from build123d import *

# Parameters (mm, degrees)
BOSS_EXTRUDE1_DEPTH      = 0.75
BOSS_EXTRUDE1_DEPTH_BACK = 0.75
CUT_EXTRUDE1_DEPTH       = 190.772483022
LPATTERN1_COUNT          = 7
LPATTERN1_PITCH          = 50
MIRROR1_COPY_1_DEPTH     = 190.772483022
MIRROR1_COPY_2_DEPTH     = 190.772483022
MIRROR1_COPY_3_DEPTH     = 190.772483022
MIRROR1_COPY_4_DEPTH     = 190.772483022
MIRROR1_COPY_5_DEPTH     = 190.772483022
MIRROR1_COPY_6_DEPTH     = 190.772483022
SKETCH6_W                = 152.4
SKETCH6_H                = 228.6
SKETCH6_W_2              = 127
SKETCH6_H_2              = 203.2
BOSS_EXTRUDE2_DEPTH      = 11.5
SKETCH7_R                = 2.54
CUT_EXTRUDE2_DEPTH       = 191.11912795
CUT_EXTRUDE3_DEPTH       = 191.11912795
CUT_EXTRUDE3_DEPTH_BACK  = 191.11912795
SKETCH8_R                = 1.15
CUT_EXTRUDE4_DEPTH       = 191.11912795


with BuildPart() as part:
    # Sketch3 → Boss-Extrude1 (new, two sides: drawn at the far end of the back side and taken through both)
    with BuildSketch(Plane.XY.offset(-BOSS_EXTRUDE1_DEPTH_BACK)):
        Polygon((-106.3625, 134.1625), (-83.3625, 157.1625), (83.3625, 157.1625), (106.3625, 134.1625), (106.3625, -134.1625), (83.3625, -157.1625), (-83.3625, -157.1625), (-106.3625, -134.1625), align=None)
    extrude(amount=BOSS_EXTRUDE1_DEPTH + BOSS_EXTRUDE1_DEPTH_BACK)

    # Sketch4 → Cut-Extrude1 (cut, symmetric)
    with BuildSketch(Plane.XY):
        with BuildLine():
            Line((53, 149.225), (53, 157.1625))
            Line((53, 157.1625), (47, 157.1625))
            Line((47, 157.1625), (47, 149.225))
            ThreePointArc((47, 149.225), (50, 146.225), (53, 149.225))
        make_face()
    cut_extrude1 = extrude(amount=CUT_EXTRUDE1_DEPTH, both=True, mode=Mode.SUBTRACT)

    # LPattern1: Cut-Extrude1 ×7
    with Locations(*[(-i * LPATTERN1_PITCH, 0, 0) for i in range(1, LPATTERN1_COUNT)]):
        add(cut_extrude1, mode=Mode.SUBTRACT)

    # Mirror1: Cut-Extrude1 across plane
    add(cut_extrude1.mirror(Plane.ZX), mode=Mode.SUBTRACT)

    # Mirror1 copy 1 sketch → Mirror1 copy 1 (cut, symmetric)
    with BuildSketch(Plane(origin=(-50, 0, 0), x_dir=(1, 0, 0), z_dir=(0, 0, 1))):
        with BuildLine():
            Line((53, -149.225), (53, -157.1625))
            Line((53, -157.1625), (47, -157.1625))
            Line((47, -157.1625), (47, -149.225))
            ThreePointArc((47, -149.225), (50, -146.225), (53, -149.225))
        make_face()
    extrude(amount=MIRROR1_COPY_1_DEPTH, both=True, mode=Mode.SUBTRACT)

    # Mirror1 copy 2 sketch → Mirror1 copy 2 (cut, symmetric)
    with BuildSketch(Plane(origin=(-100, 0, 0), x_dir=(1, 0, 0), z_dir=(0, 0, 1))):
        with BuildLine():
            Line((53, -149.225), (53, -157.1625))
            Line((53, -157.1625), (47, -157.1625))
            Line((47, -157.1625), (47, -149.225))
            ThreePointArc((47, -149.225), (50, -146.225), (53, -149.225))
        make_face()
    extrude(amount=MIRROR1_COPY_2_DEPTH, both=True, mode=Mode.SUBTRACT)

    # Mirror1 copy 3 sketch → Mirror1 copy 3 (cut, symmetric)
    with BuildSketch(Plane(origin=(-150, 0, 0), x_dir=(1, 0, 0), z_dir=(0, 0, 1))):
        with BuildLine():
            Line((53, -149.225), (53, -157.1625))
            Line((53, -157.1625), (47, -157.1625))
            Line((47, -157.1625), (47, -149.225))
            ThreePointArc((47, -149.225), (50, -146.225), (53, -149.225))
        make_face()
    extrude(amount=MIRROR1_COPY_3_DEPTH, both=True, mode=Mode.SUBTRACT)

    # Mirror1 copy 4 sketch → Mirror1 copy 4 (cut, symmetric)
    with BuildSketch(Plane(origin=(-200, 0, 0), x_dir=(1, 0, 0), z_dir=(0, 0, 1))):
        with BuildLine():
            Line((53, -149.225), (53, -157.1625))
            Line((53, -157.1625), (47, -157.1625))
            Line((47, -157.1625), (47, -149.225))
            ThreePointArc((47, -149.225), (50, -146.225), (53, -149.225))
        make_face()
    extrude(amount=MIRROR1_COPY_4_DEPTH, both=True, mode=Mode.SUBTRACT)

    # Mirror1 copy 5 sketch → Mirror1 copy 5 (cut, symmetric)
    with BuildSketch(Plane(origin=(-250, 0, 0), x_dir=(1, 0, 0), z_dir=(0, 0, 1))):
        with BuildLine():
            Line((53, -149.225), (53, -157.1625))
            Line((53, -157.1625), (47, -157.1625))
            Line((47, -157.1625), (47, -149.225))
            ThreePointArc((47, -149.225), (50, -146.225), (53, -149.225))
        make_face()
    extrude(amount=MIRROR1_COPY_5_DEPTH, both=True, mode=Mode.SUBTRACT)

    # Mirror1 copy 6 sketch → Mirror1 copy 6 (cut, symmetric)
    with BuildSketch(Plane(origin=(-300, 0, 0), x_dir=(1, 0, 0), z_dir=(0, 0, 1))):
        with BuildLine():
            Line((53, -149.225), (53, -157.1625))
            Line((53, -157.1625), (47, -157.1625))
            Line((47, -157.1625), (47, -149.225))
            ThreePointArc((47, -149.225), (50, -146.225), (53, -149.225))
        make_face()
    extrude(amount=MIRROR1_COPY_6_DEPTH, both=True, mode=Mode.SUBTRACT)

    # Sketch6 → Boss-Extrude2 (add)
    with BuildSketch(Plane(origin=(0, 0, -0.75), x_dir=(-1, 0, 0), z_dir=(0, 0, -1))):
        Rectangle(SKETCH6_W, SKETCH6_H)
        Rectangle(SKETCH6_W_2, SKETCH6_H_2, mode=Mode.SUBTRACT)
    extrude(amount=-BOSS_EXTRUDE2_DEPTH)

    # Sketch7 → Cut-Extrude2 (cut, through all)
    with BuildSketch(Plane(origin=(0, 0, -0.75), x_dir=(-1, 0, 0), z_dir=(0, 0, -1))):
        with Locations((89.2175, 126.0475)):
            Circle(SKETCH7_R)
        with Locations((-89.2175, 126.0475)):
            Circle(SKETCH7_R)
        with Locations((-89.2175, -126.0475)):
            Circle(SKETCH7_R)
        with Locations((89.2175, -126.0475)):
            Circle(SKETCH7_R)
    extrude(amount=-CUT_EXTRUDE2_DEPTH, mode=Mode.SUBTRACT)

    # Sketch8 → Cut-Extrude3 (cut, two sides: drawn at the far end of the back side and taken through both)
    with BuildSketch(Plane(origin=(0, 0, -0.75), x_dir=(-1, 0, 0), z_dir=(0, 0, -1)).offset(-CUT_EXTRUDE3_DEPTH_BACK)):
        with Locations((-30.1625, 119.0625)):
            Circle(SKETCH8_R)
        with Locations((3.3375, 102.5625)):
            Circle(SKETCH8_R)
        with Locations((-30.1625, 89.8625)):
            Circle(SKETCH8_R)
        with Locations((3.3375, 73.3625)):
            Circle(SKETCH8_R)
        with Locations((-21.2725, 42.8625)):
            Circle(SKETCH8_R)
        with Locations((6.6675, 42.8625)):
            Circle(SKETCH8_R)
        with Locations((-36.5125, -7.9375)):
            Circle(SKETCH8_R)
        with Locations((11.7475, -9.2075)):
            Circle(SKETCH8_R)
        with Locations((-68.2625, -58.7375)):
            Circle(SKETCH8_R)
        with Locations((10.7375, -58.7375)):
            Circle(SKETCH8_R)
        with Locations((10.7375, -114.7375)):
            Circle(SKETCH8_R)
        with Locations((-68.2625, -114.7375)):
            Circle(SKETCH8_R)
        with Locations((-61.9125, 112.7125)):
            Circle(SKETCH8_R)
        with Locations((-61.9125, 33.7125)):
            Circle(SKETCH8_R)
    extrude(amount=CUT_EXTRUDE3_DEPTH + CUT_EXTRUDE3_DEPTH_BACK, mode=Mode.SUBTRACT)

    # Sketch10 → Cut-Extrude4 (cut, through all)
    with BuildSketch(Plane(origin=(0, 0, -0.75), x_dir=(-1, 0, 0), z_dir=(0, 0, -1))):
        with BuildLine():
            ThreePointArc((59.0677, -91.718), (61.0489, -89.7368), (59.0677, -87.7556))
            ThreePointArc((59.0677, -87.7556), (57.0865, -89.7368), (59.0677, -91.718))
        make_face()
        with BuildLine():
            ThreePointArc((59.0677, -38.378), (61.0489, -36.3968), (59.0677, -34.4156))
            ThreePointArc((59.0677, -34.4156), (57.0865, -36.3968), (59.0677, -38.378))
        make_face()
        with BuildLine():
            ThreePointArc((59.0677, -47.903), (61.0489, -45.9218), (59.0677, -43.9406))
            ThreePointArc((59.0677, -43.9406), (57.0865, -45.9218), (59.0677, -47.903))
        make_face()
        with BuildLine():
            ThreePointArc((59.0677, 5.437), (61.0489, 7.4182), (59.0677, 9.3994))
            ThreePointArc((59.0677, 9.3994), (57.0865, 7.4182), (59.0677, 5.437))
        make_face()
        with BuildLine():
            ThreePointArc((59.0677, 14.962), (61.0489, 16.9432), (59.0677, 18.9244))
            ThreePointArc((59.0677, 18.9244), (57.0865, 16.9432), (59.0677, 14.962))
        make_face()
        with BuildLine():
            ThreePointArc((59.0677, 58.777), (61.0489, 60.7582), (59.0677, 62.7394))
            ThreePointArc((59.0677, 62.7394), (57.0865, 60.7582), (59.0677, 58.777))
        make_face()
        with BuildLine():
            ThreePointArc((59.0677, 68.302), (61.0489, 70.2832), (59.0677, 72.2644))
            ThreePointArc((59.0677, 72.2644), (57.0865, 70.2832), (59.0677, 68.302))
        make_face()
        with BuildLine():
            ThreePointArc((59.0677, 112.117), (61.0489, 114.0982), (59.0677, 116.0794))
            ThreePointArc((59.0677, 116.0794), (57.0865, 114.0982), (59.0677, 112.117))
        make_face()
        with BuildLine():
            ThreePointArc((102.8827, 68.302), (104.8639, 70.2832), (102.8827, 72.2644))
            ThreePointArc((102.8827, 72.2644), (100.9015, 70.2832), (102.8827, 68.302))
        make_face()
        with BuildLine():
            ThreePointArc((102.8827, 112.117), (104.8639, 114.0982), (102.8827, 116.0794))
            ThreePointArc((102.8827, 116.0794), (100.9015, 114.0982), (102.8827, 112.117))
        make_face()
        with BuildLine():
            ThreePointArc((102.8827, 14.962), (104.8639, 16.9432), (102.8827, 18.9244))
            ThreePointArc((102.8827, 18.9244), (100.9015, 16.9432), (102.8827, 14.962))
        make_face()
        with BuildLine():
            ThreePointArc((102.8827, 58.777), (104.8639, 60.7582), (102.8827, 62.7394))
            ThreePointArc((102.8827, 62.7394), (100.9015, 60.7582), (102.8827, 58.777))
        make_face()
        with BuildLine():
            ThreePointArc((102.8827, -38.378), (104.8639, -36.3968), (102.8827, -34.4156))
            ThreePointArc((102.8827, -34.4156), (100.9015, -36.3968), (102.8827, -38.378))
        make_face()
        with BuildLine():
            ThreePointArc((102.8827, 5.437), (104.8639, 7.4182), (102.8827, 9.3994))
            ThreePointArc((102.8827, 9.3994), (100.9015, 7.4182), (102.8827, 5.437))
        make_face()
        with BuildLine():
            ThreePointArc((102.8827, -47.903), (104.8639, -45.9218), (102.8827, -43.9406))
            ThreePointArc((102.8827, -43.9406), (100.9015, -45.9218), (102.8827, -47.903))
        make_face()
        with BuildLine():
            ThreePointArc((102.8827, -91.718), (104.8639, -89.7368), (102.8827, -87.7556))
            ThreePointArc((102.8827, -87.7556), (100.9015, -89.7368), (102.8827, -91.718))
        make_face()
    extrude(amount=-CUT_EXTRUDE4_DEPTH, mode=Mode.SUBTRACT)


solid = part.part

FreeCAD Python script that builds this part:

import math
import FreeCAD as App
import Part
import Sketcher
Q = App.Units.Quantity


def add_polygon(sketch, points):
    """Adds a closed chain of lines whose ends are joined by coincident constraints."""
    first, n = sketch.GeometryCount, len(points)
    for a, b in zip(points, points[1:] + points[:1]):
        sketch.addGeometry(Part.LineSegment(App.Vector(*a, 0), App.Vector(*b, 0)), False)
    for i in range(n):
        sketch.addConstraint(Sketcher.Constraint("Coincident", first + i, 2, first + (i + 1) % n, 1))

doc = App.newDocument("Part")
body = doc.addObject("PartDesign::Body", "Body")

sketch1 = body.newObject("Sketcher::SketchObject", "Sketch")
sketch1.AttachmentSupport = (doc.getObject("XY_Plane"), [""])
sketch1.MapMode = "FlatFace"
add_polygon(sketch1, [(-83.3625, 157.1625), (-106.3625, 134.1625), (-106.3625, -134.1625), (-83.3625, -157.1625), (83.3625, -157.1625), (106.3625, -134.1625), (106.3625, 134.1625), (83.3625, 157.1625)])
sketch1.addConstraint(Sketcher.Constraint("Vertical", 1))
sketch1.addConstraint(Sketcher.Constraint("Horizontal", 3))
sketch1.addConstraint(Sketcher.Constraint("Vertical", 5))
sketch1.addConstraint(Sketcher.Constraint("Horizontal", 7))
sketch1.addConstraint(Sketcher.Constraint("Symmetric", 0, 2, 4, 2, -1, 1))
sketch1.addConstraint(Sketcher.Constraint("Symmetric", 2, 2, 6, 2, -1, 1))
sketch1.addConstraint(Sketcher.Constraint("Perpendicular", 0, 2))
sketch1.addConstraint(Sketcher.Constraint("Perpendicular", 2, 4))
sketch1.addConstraint(Sketcher.Constraint("Perpendicular", 4, 6))
sketch1.addConstraint(Sketcher.Constraint("Horizontal", 1, 2, 4, 2))
sketch1.addConstraint(Sketcher.Constraint("Vertical", 3, 2, 6, 2))
sketch1.addConstraint(Sketcher.Constraint("DistanceX", 0, 2, -1, 1, Q("4.1875 in")))
sketch1.addConstraint(Sketcher.Constraint("DistanceY", 2, 2, -1, 1, Q("6.1875 in")))
sketch1.addConstraint(Sketcher.Constraint("DistanceX", 3, 1, 3, 2, 166.725))
pad1 = body.newObject("PartDesign::Pad", "Pad")
pad1.Profile = sketch1
pad1.Type = "TwoLengths"
pad1.Length = 0.75
pad1.Length2 = 0.75

sketch2 = body.newObject("Sketcher::SketchObject", "Sketch001")
sketch2.AttachmentSupport = (doc.getObject("XY_Plane"), [""])
sketch2.MapMode = "FlatFace"
sketch2.addGeometry(Part.LineSegment(App.Vector(53, 149.225, 0), App.Vector(53, 157.1625, 0)), False)
sketch2.addGeometry(Part.LineSegment(App.Vector(53, 157.1625, 0), App.Vector(47, 157.1625, 0)), False)
sketch2.addGeometry(Part.LineSegment(App.Vector(47, 157.1625, 0), App.Vector(47, 149.225, 0)), False)
sketch2.addGeometry(Part.ArcOfCircle(Part.Circle(App.Vector(50, 149.225, 0), App.Vector(0, 0, 1), 3), math.radians(180), math.radians(360)), False)
sketch2.addConstraint(Sketcher.Constraint("Coincident", 0, 2, 1, 1))
sketch2.addConstraint(Sketcher.Constraint("Coincident", 1, 2, 2, 1))
sketch2.addConstraint(Sketcher.Constraint("Tangent", 2, 2, 3, 1))
sketch2.addConstraint(Sketcher.Constraint("Tangent", 3, 2, 0, 1))
sketch2.addConstraint(Sketcher.Constraint("Vertical", 0))
sketch2.addConstraint(Sketcher.Constraint("Horizontal", 1))
sketch2.addConstraint(Sketcher.Constraint("Vertical", 2))
sketch2.addConstraint(Sketcher.Constraint("DistanceY", 0, 1, 0, 2, Q("0.3125 in")))
sketch2.addConstraint(Sketcher.Constraint("Radius", 3, 3.0))
sketch2.addConstraint(Sketcher.Constraint("DistanceY", -1, 1, 3, 3, Q("5.875 in")))
sketch2.addConstraint(Sketcher.Constraint("DistanceX", -1, 1, 3, 3, 50.0))
pocket1 = body.newObject("PartDesign::Pocket", "Pocket")
pocket1.Profile = sketch2
pocket1.Length = 381.544966
pocket1.Midplane = True
doc.recompute()

linearpattern = body.newObject("PartDesign::LinearPattern", "LinearPattern")
linearpattern.Originals = [pocket1]
linearpattern.Direction = (doc.getObject("X_Axis"), [""])
linearpattern.Mode = "offset"
linearpattern.Offset = 50
linearpattern.Occurrences = 7
linearpattern.Reversed = True
body.Tip = linearpattern
doc.recompute()

mirrored = body.newObject("PartDesign::Mirrored", "Mirrored")
mirrored.Originals = [pocket1]
mirrored.MirrorPlane = (doc.getObject("XZ_Plane"), [""])
body.Tip = mirrored

sketch3 = body.newObject("Sketcher::SketchObject", "Sketch002")
sketch3.AttachmentSupport = (doc.getObject("XY_Plane"), [""])
sketch3.MapMode = "FlatFace"
sketch3.addGeometry(Part.LineSegment(App.Vector(3, -157.1625, 0), App.Vector(3, -149.225, 0)), False)
sketch3.addGeometry(Part.ArcOfCircle(Part.Circle(App.Vector(0, -149.225, 0), App.Vector(0, 0, 1), 3), math.radians(0), math.radians(180)), False)
sketch3.addGeometry(Part.LineSegment(App.Vector(-3, -149.225, 0), App.Vector(-3, -157.1625, 0)), False)
sketch3.addGeometry(Part.LineSegment(App.Vector(-3, -157.1625, 0), App.Vector(3, -157.1625, 0)), False)
sketch3.addConstraint(Sketcher.Constraint("Tangent", 0, 2, 1, 1))
sketch3.addConstraint(Sketcher.Constraint("Tangent", 1, 2, 2, 1))
sketch3.addConstraint(Sketcher.Constraint("Coincident", 2, 2, 3, 1))
sketch3.addConstraint(Sketcher.Constraint("Coincident", 3, 2, 0, 1))
sketch3.addConstraint(Sketcher.Constraint("Vertical", 0))
sketch3.addConstraint(Sketcher.Constraint("Vertical", 2))
sketch3.addConstraint(Sketcher.Constraint("Horizontal", 3))
sketch3.addConstraint(Sketcher.Constraint("PointOnObject", 1, 3, -2))
sketch3.addConstraint(Sketcher.Constraint("DistanceY", 0, 1, 0, 2, Q("0.3125 in")))
sketch3.addConstraint(Sketcher.Constraint("Radius", 1, 3.0))
sketch3.addConstraint(Sketcher.Constraint("DistanceY", 1, 3, -1, 1, Q("5.875 in")))
pocket2 = body.newObject("PartDesign::Pocket", "Pocket001")
pocket2.Profile = sketch3
pocket2.Length = 381.544966
pocket2.Midplane = True

sketch4 = body.newObject("Sketcher::SketchObject", "Sketch003")
sketch4.AttachmentSupport = (doc.getObject("XY_Plane"), [""])
sketch4.MapMode = "FlatFace"
sketch4.addGeometry(Part.LineSegment(App.Vector(-47, -157.1625, 0), App.Vector(-47, -149.225, 0)), False)
sketch4.addGeometry(Part.ArcOfCircle(Part.Circle(App.Vector(-50, -149.225, 0), App.Vector(0, 0, 1), 3), math.radians(0), math.radians(180)), False)
sketch4.addGeometry(Part.LineSegment(App.Vector(-53, -149.225, 0), App.Vector(-53, -157.1625, 0)), False)
sketch4.addGeometry(Part.LineSegment(App.Vector(-53, -157.1625, 0), App.Vector(-47, -157.1625, 0)), False)
sketch4.addConstraint(Sketcher.Constraint("Tangent", 0, 2, 1, 1))
sketch4.addConstraint(Sketcher.Constraint("Tangent", 1, 2, 2, 1))
sketch4.addConstraint(Sketcher.Constraint("Coincident", 2, 2, 3, 1))
sketch4.addConstraint(Sketcher.Constraint("Coincident", 3, 2, 0, 1))
sketch4.addConstraint(Sketcher.Constraint("Vertical", 0))
sketch4.addConstraint(Sketcher.Constraint("Vertical", 2))
sketch4.addConstraint(Sketcher.Constraint("Horizontal", 3))
sketch4.addConstraint(Sketcher.Constraint("DistanceY", 0, 1, 0, 2, Q("0.3125 in")))
sketch4.addConstraint(Sketcher.Constraint("Radius", 1, 3.0))
sketch4.addConstraint(Sketcher.Constraint("DistanceY", 1, 3, -1, 1, Q("5.875 in")))
sketch4.addConstraint(Sketcher.Constraint("DistanceX", 1, 3, -1, 1, 50.0))
pocket3 = body.newObject("PartDesign::Pocket", "Pocket002")
pocket3.Profile = sketch4
pocket3.Length = 381.544966
pocket3.Midplane = True

sketch5 = body.newObject("Sketcher::SketchObject", "Sketch004")
sketch5.AttachmentSupport = (doc.getObject("XY_Plane"), [""])
sketch5.MapMode = "FlatFace"
sketch5.addGeometry(Part.LineSegment(App.Vector(-97, -157.1625, 0), App.Vector(-97, -149.225, 0)), False)
sketch5.addGeometry(Part.ArcOfCircle(Part.Circle(App.Vector(-100, -149.225, 0), App.Vector(0, 0, 1), 3), math.radians(0), math.radians(180)), False)
sketch5.addGeometry(Part.LineSegment(App.Vector(-103, -149.225, 0), App.Vector(-103, -157.1625, 0)), False)
sketch5.addGeometry(Part.LineSegment(App.Vector(-103, -157.1625, 0), App.Vector(-97, -157.1625, 0)), False)
sketch5.addConstraint(Sketcher.Constraint("Tangent", 0, 2, 1, 1))
sketch5.addConstraint(Sketcher.Constraint("Tangent", 1, 2, 2, 1))
sketch5.addConstraint(Sketcher.Constraint("Coincident", 2, 2, 3, 1))
sketch5.addConstraint(Sketcher.Constraint("Coincident", 3, 2, 0, 1))
sketch5.addConstraint(Sketcher.Constraint("Vertical", 0))
sketch5.addConstraint(Sketcher.Constraint("Vertical", 2))
sketch5.addConstraint(Sketcher.Constraint("Horizontal", 3))
sketch5.addConstraint(Sketcher.Constraint("DistanceY", 0, 1, 0, 2, Q("0.3125 in")))
sketch5.addConstraint(Sketcher.Constraint("Radius", 1, 3.0))
sketch5.addConstraint(Sketcher.Constraint("DistanceY", 1, 3, -1, 1, Q("5.875 in")))
sketch5.addConstraint(Sketcher.Constraint("DistanceX", 1, 3, -1, 1, 100.0))
pocket4 = body.newObject("PartDesign::Pocket", "Pocket003")
pocket4.Profile = sketch5
pocket4.Length = 381.544966
pocket4.Midplane = True

sketch6 = body.newObject("Sketcher::SketchObject", "Sketch005")
sketch6.AttachmentSupport = (doc.getObject("XY_Plane"), [""])
sketch6.MapMode = "FlatFace"
sketch6.addGeometry(Part.LineSegment(App.Vector(-147, -157.1625, 0), App.Vector(-147, -149.225, 0)), False)
sketch6.addGeometry(Part.ArcOfCircle(Part.Circle(App.Vector(-150, -149.225, 0), App.Vector(0, 0, 1), 3), math.radians(0), math.radians(180)), False)
sketch6.addGeometry(Part.LineSegment(App.Vector(-153, -149.225, 0), App.Vector(-153, -157.1625, 0)), False)
sketch6.addGeometry(Part.LineSegment(App.Vector(-153, -157.1625, 0), App.Vector(-147, -157.1625, 0)), False)
sketch6.addConstraint(Sketcher.Constraint("Tangent", 0, 2, 1, 1))
sketch6.addConstraint(Sketcher.Constraint("Tangent", 1, 2, 2, 1))
sketch6.addConstraint(Sketcher.Constraint("Coincident", 2, 2, 3, 1))
sketch6.addConstraint(Sketcher.Constraint("Coincident", 3, 2, 0, 1))
sketch6.addConstraint(Sketcher.Constraint("Vertical", 0))
sketch6.addConstraint(Sketcher.Constraint("Vertical", 2))
sketch6.addConstraint(Sketcher.Constraint("Horizontal", 3))
sketch6.addConstraint(Sketcher.Constraint("DistanceY", 0, 1, 0, 2, Q("0.3125 in")))
sketch6.addConstraint(Sketcher.Constraint("Radius", 1, 3.0))
sketch6.addConstraint(Sketcher.Constraint("DistanceY", 1, 3, -1, 1, Q("5.875 in")))
sketch6.addConstraint(Sketcher.Constraint("DistanceX", 1, 3, -1, 1, 150.0))
pocket5 = body.newObject("PartDesign::Pocket", "Pocket004")
pocket5.Profile = sketch6
pocket5.Length = 381.544966
pocket5.Midplane = True

sketch7 = body.newObject("Sketcher::SketchObject", "Sketch006")
sketch7.AttachmentSupport = (doc.getObject("XY_Plane"), [""])
sketch7.MapMode = "FlatFace"
sketch7.addGeometry(Part.LineSegment(App.Vector(-197, -157.1625, 0), App.Vector(-197, -149.225, 0)), False)
sketch7.addGeometry(Part.ArcOfCircle(Part.Circle(App.Vector(-200, -149.225, 0), App.Vector(0, 0, 1), 3), math.radians(0), math.radians(180)), False)
sketch7.addGeometry(Part.LineSegment(App.Vector(-203, -149.225, 0), App.Vector(-203, -157.1625, 0)), False)
sketch7.addGeometry(Part.LineSegment(App.Vector(-203, -157.1625, 0), App.Vector(-197, -157.1625, 0)), False)
sketch7.addConstraint(Sketcher.Constraint("Tangent", 0, 2, 1, 1))
sketch7.addConstraint(Sketcher.Constraint("Tangent", 1, 2, 2, 1))
sketch7.addConstraint(Sketcher.Constraint("Coincident", 2, 2, 3, 1))
sketch7.addConstraint(Sketcher.Constraint("Coincident", 3, 2, 0, 1))
sketch7.addConstraint(Sketcher.Constraint("Vertical", 0))
sketch7.addConstraint(Sketcher.Constraint("Vertical", 2))
sketch7.addConstraint(Sketcher.Constraint("Horizontal", 3))
sketch7.addConstraint(Sketcher.Constraint("DistanceY", 0, 1, 0, 2, Q("0.3125 in")))
sketch7.addConstraint(Sketcher.Constraint("Radius", 1, 3.0))
sketch7.addConstraint(Sketcher.Constraint("DistanceY", 1, 3, -1, 1, Q("5.875 in")))
sketch7.addConstraint(Sketcher.Constraint("DistanceX", 1, 3, -1, 1, 200.0))
pocket6 = body.newObject("PartDesign::Pocket", "Pocket005")
pocket6.Profile = sketch7
pocket6.Length = 381.544966
pocket6.Midplane = True

sketch8 = body.newObject("Sketcher::SketchObject", "Sketch007")
sketch8.AttachmentSupport = (doc.getObject("XY_Plane"), [""])
sketch8.MapMode = "FlatFace"
sketch8.addGeometry(Part.LineSegment(App.Vector(-247, -157.1625, 0), App.Vector(-247, -149.225, 0)), False)
sketch8.addGeometry(Part.ArcOfCircle(Part.Circle(App.Vector(-250, -149.225, 0), App.Vector(0, 0, 1), 3), math.radians(0), math.radians(180)), False)
sketch8.addGeometry(Part.LineSegment(App.Vector(-253, -149.225, 0), App.Vector(-253, -157.1625, 0)), False)
sketch8.addGeometry(Part.LineSegment(App.Vector(-253, -157.1625, 0), App.Vector(-247, -157.1625, 0)), False)
sketch8.addConstraint(Sketcher.Constraint("Tangent", 0, 2, 1, 1))
sketch8.addConstraint(Sketcher.Constraint("Tangent", 1, 2, 2, 1))
sketch8.addConstraint(Sketcher.Constraint("Coincident", 2, 2, 3, 1))
sketch8.addConstraint(Sketcher.Constraint("Coincident", 3, 2, 0, 1))
sketch8.addConstraint(Sketcher.Constraint("Vertical", 0))
sketch8.addConstraint(Sketcher.Constraint("Vertical", 2))
sketch8.addConstraint(Sketcher.Constraint("Horizontal", 3))
sketch8.addConstraint(Sketcher.Constraint("DistanceY", 0, 1, 0, 2, Q("0.3125 in")))
sketch8.addConstraint(Sketcher.Constraint("Radius", 1, 3.0))
sketch8.addConstraint(Sketcher.Constraint("DistanceY", 1, 3, -1, 1, Q("5.875 in")))
sketch8.addConstraint(Sketcher.Constraint("DistanceX", 1, 3, -1, 1, 250.0))
pocket7 = body.newObject("PartDesign::Pocket", "Pocket006")
pocket7.Profile = sketch8
pocket7.Length = 381.544966
pocket7.Midplane = True

sketch9 = body.newObject("Sketcher::SketchObject", "Sketch008")
sketch9.AttachmentSupport = (doc.getObject("XY_Plane"), [""])
sketch9.MapMode = "FlatFace"
sketch9.AttachmentOffset = App.Placement(App.Vector(0, 0, -0.75), App.Rotation())
add_polygon(sketch9, [(76.2, 114.3), (76.2, -114.3), (-76.2, -114.3), (-76.2, 114.3)])
add_polygon(sketch9, [(-63.5, -101.6), (63.5, -101.6), (63.5, 101.6), (-63.5, 101.6)])
sketch9.addConstraint(Sketcher.Constraint("Vertical", 0))
sketch9.addConstraint(Sketcher.Constraint("Horizontal", 1))
sketch9.addConstraint(Sketcher.Constraint("Vertical", 2))
sketch9.addConstraint(Sketcher.Constraint("Horizontal", 3))
sketch9.addConstraint(Sketcher.Constraint("Horizontal", 4))
sketch9.addConstraint(Sketcher.Constraint("Vertical", 5))
sketch9.addConstraint(Sketcher.Constraint("Horizontal", 6))
sketch9.addConstraint(Sketcher.Constraint("Vertical", 7))
sketch9.addConstraint(Sketcher.Constraint("Symmetric", 0, 2, 2, 2, -1, 1))
sketch9.addConstraint(Sketcher.Constraint("Symmetric", 4, 2, 6, 2, -1, 1))
sketch9.addConstraint(Sketcher.Constraint("DistanceX", 1, 2, 1, 1, Q("6 in")))
sketch9.addConstraint(Sketcher.Constraint("DistanceX", 4, 1, 4, 2, Q("5 in")))
sketch9.addConstraint(Sketcher.Constraint("DistanceY", 0, 2, 0, 1, Q("9 in")))
sketch9.addConstraint(Sketcher.Constraint("DistanceY", 5, 1, 5, 2, Q("8 in")))
pad2 = body.newObject("PartDesign::Pad", "Pad001")
pad2.Profile = sketch9
pad2.Length = 11.5

sketch10 = body.newObject("Sketcher::SketchObject", "Sketch009")
sketch10.AttachmentSupport = (doc.getObject("XY_Plane"), [""])
sketch10.MapMode = "FlatFace"
sketch10.AttachmentOffset = App.Placement(App.Vector(0, 0, -0.75), App.Rotation())
sketch10.addGeometry(Part.Circle(App.Vector(-89.2175, 126.0475, 0), App.Vector(0, 0, 1), 2.54), False)
sketch10.addGeometry(Part.Circle(App.Vector(89.2175, 126.0475, 0), App.Vector(0, 0, 1), 2.54), False)
sketch10.addGeometry(Part.Circle(App.Vector(89.2175, -126.0475, 0), App.Vector(0, 0, 1), 2.54), False)
sketch10.addGeometry(Part.Circle(App.Vector(-89.2175, -126.0475, 0), App.Vector(0, 0, 1), 2.54), False)
sketch10.addConstraint(Sketcher.Constraint("Equal", 0, 1))
sketch10.addConstraint(Sketcher.Constraint("Equal", 1, 2))
sketch10.addConstraint(Sketcher.Constraint("Equal", 2, 3))
sketch10.addConstraint(Sketcher.Constraint("Symmetric", 0, 3, 2, 3, -1, 1))
sketch10.addConstraint(Sketcher.Constraint("Symmetric", 1, 3, 3, 3, -1, 1))
sketch10.addConstraint(Sketcher.Constraint("Symmetric", 0, 3, 1, 3, -2))
sketch10.addConstraint(Sketcher.Constraint("Diameter", 0, Q("0.2 in")))
sketch10.addConstraint(Sketcher.Constraint("DistanceX", 0, 3, 1, 3, Q("7.025 in")))
sketch10.addConstraint(Sketcher.Constraint("DistanceY", 2, 3, 1, 3, Q("9.925 in")))
pocket8 = body.newObject("PartDesign::Pocket", "Pocket007")
pocket8.Profile = sketch10
pocket8.Type = "ThroughAll"
pocket8.Reversed = True

sketch11 = body.newObject("Sketcher::SketchObject", "Sketch010")
sketch11.AttachmentSupport = (doc.getObject("XY_Plane"), [""])
sketch11.MapMode = "FlatFace"
sketch11.AttachmentOffset = App.Placement(App.Vector(0, 0, -0.75), App.Rotation())
sketch11.addGeometry(Part.Circle(App.Vector(30.1625, 119.0625, 0), App.Vector(0, 0, 1), 1.15), False)
sketch11.addGeometry(Part.Circle(App.Vector(-3.3375, 102.5625, 0), App.Vector(0, 0, 1), 1.15), False)
sketch11.addGeometry(Part.Circle(App.Vector(30.1625, 89.8625, 0), App.Vector(0, 0, 1), 1.15), False)
sketch11.addGeometry(Part.Circle(App.Vector(-3.3375, 73.3625, 0), App.Vector(0, 0, 1), 1.15), False)
sketch11.addGeometry(Part.Circle(App.Vector(21.2725, 42.8625, 0), App.Vector(0, 0, 1), 1.15), False)
sketch11.addGeometry(Part.Circle(App.Vector(-6.6675, 42.8625, 0), App.Vector(0, 0, 1), 1.15), False)
sketch11.addGeometry(Part.Circle(App.Vector(36.5125, -7.9375, 0), App.Vector(0, 0, 1), 1.15), False)
sketch11.addGeometry(Part.Circle(App.Vector(-11.7475, -9.2075, 0), App.Vector(0, 0, 1), 1.15), False)
sketch11.addGeometry(Part.Circle(App.Vector(68.2625, -58.7375, 0), App.Vector(0, 0, 1), 1.15), False)
sketch11.addGeometry(Part.Circle(App.Vector(-10.7375, -58.7375, 0), App.Vector(0, 0, 1), 1.15), False)
sketch11.addGeometry(Part.Circle(App.Vector(-10.7375, -114.7375, 0), App.Vector(0, 0, 1), 1.15), False)
sketch11.addGeometry(Part.Circle(App.Vector(68.2625, -114.7375, 0), App.Vector(0, 0, 1), 1.15), False)
sketch11.addGeometry(Part.Circle(App.Vector(61.9125, 112.7125, 0), App.Vector(0, 0, 1), 1.15), False)
sketch11.addGeometry(Part.Circle(App.Vector(61.9125, 33.7125, 0), App.Vector(0, 0, 1), 1.15), False)
sketch11.addConstraint(Sketcher.Constraint("Equal", 0, 1))
sketch11.addConstraint(Sketcher.Constraint("Equal", 1, 2))
sketch11.addConstraint(Sketcher.Constraint("Equal", 2, 3))
sketch11.addConstraint(Sketcher.Constraint("Equal", 3, 4))
sketch11.addConstraint(Sketcher.Constraint("Equal", 4, 5))
sketch11.addConstraint(Sketcher.Constraint("Equal", 5, 6))
sketch11.addConstraint(Sketcher.Constraint("Equal", 6, 7))
sketch11.addConstraint(Sketcher.Constraint("Equal", 7, 8))
sketch11.addConstraint(Sketcher.Constraint("Equal", 8, 9))
sketch11.addConstraint(Sketcher.Constraint("Equal", 9, 10))
sketch11.addConstraint(Sketcher.Constraint("Equal", 10, 11))
sketch11.addConstraint(Sketcher.Constraint("Equal", 11, 12))
sketch11.addConstraint(Sketcher.Constraint("Equal", 12, 13))
sketch11.addConstraint(Sketcher.Constraint("Horizontal", 4, 3, 5, 3))
sketch11.addConstraint(Sketcher.Constraint("Horizontal", 8, 3, 9, 3))
sketch11.addConstraint(Sketcher.Constraint("Horizontal", 10, 3, 11, 3))
sketch11.addConstraint(Sketcher.Constraint("Vertical", 0, 3, 2, 3))
sketch11.addConstraint(Sketcher.Constraint("Vertical", 1, 3, 3, 3))
sketch11.addConstraint(Sketcher.Constraint("Vertical", 9, 3, 10, 3))
sketch11.addConstraint(Sketcher.Constraint("Vertical", 8, 3, 11, 3))
sketch11.addConstraint(Sketcher.Constraint("Vertical", 12, 3, 13, 3))
sketch11.addConstraint(Sketcher.Constraint("DistanceY", 4, 3, 0, 3, Q("3 in")))
sketch11.addConstraint(Sketcher.Constraint("DistanceY", 6, 3, 4, 3, Q("2 in")))
sketch11.addConstraint(Sketcher.Constraint("DistanceY", 8, 3, 6, 3, Q("2 in")))
sketch11.addConstraint(Sketcher.Constraint("DistanceX", 6, 3, 13, 3, Q("1 in")))
sketch11.addConstraint(Sketcher.Constraint("DistanceY", 2, 3, 1, 3, Q("0.5 in")))
sketch11.addConstraint(Sketcher.Constraint("DistanceX", 5, 3, 4, 3, Q("1.1 in")))
sketch11.addConstraint(Sketcher.Constraint("DistanceX", 4, 3, 6, 3, Q("0.6 in")))
sketch11.addConstraint(Sketcher.Constraint("DistanceX", 7, 3, 6, 3, Q("1.9 in")))
sketch11.addConstraint(Sketcher.Constraint("Diameter", 0, 2.3))
sketch11.addConstraint(Sketcher.Constraint("DistanceX", 4, 3, 2, 3, Q("0.35 in")))
sketch11.addConstraint(Sketcher.Constraint("DistanceY", 7, 3, 6, 3, Q("0.05 in")))
sketch11.addConstraint(Sketcher.Constraint("DistanceX", 6, 3, 8, 3, Q("1.25 in")))
sketch11.addConstraint(Sketcher.Constraint("DistanceY", 12, 3, 0, 3, Q("0.25 in")))
sketch11.addConstraint(Sketcher.Constraint("DistanceX", -1, 1, 0, 3, Q("1.1875 in")))
sketch11.addConstraint(Sketcher.Constraint("DistanceY", -1, 1, 0, 3, Q("4.6875 in")))
sketch11.addConstraint(Sketcher.Constraint("DistanceX", 1, 3, -1, 1, 3.3375))
sketch11.addConstraint(Sketcher.Constraint("DistanceY", -1, 1, 1, 3, 102.5625))
sketch11.addConstraint(Sketcher.Constraint("DistanceY", -1, 1, 3, 3, 73.3625))
sketch11.addConstraint(Sketcher.Constraint("DistanceX", 9, 3, -1, 1, 10.7375))
sketch11.addConstraint(Sketcher.Constraint("DistanceY", 10, 3, -1, 1, 114.7375))
sketch11.addConstraint(Sketcher.Constraint("DistanceY", -1, 1, 13, 3, 33.7125))
pocket9 = body.newObject("PartDesign::Pocket", "Pocket008")
pocket9.Profile = sketch11
pocket9.Type = "ThroughAll"
pocket9.Midplane = True

sketch12 = body.newObject("Sketcher::SketchObject", "Sketch011")
sketch12.AttachmentSupport = (doc.getObject("XY_Plane"), [""])
sketch12.MapMode = "FlatFace"
sketch12.AttachmentOffset = App.Placement(App.Vector(0, 0, -0.75), App.Rotation())
sketch12.addGeometry(Part.Circle(App.Vector(-59.0677, -89.7368, 0), App.Vector(0, 0, 1), 1.9812), False)
sketch12.addGeometry(Part.Circle(App.Vector(-59.0677, -36.3968, 0), App.Vector(0, 0, 1), 1.9812), False)
sketch12.addGeometry(Part.Circle(App.Vector(-59.0677, -45.9218, 0), App.Vector(0, 0, 1), 1.9812), False)
sketch12.addGeometry(Part.Circle(App.Vector(-59.0677, 7.4182, 0), App.Vector(0, 0, 1), 1.9812), False)
sketch12.addGeometry(Part.Circle(App.Vector(-59.0677, 16.9432, 0), App.Vector(0, 0, 1), 1.9812), False)
sketch12.addGeometry(Part.Circle(App.Vector(-59.0677, 60.7582, 0), App.Vector(0, 0, 1), 1.9812), False)
sketch12.addGeometry(Part.Circle(App.Vector(-59.0677, 70.2832, 0), App.Vector(0, 0, 1), 1.9812), False)
sketch12.addGeometry(Part.Circle(App.Vector(-59.0677, 114.0982, 0), App.Vector(0, 0, 1), 1.9812), False)
sketch12.addGeometry(Part.Circle(App.Vector(-102.8827, 70.2832, 0), App.Vector(0, 0, 1), 1.9812), False)
sketch12.addGeometry(Part.Circle(App.Vector(-102.8827, 114.0982, 0), App.Vector(0, 0, 1), 1.9812), False)
sketch12.addGeometry(Part.Circle(App.Vector(-102.8827, 16.9432, 0), App.Vector(0, 0, 1), 1.9812), False)
sketch12.addGeometry(Part.Circle(App.Vector(-102.8827, 60.7582, 0), App.Vector(0, 0, 1), 1.9812), False)
sketch12.addGeometry(Part.Circle(App.Vector(-102.8827, -36.3968, 0), App.Vector(0, 0, 1), 1.9812), False)
sketch12.addGeometry(Part.Circle(App.Vector(-102.8827, 7.4182, 0), App.Vector(0, 0, 1), 1.9812), False)
sketch12.addGeometry(Part.Circle(App.Vector(-102.8827, -45.9218, 0), App.Vector(0, 0, 1), 1.9812), False)
sketch12.addGeometry(Part.Circle(App.Vector(-102.8827, -89.7368, 0), App.Vector(0, 0, 1), 1.9812), False)
sketch12.addConstraint(Sketcher.Constraint("Equal", 0, 1))
sketch12.addConstraint(Sketcher.Constraint("Equal", 1, 2))
sketch12.addConstraint(Sketcher.Constraint("Equal", 2, 3))
sketch12.addConstraint(Sketcher.Constraint("Equal", 3, 4))
sketch12.addConstraint(Sketcher.Constraint("Equal", 4, 5))
sketch12.addConstraint(Sketcher.Constraint("Equal", 5, 6))
sketch12.addConstraint(Sketcher.Constraint("Equal", 6, 7))
sketch12.addConstraint(Sketcher.Constraint("Equal", 7, 8))
sketch12.addConstraint(Sketcher.Constraint("Equal", 8, 9))
sketch12.addConstraint(Sketcher.Constraint("Equal", 9, 10))
sketch12.addConstraint(Sketcher.Constraint("Equal", 10, 11))
sketch12.addConstraint(Sketcher.Constraint("Equal", 11, 12))
sketch12.addConstraint(Sketcher.Constraint("Equal", 12, 13))
sketch12.addConstraint(Sketcher.Constraint("Equal", 13, 14))
sketch12.addConstraint(Sketcher.Constraint("Equal", 14, 15))
sketch12.addConstraint(Sketcher.Constraint("Horizontal", 6, 3, 8, 3))
sketch12.addConstraint(Sketcher.Constraint("Horizontal", 7, 3, 9, 3))
sketch12.addConstraint(Sketcher.Constraint("Horizontal", 4, 3, 10, 3))
sketch12.addConstraint(Sketcher.Constraint("Horizontal", 5, 3, 11, 3))
sketch12.addConstraint(Sketcher.Constraint("Horizontal", 1, 3, 12, 3))
sketch12.addConstraint(Sketcher.Constraint("Horizontal", 3, 3, 13, 3))
sketch12.addConstraint(Sketcher.Constraint("Horizontal", 2, 3, 14, 3))
sketch12.addConstraint(Sketcher.Constraint("Horizontal", 0, 3, 15, 3))
sketch12.addConstraint(Sketcher.Constraint("Vertical", 0, 3, 1, 3))
sketch12.addConstraint(Sketcher.Constraint("Vertical", 1, 3, 2, 3))
sketch12.addConstraint(Sketcher.Constraint("Vertical", 2, 3, 3, 3))
sketch12.addConstraint(Sketcher.Constraint("Vertical", 3, 3, 4, 3))
sketch12.addConstraint(Sketcher.Constraint("Vertical", 4, 3, 5, 3))
sketch12.addConstraint(Sketcher.Constraint("Vertical", 5, 3, 6, 3))
sketch12.addConstraint(Sketcher.Constraint("Vertical", 6, 3, 7, 3))
sketch12.addConstraint(Sketcher.Constraint("Vertical", 8, 3, 9, 3))
sketch12.addConstraint(Sketcher.Constraint("Vertical", 9, 3, 10, 3))
sketch12.addConstraint(Sketcher.Constraint("Vertical", 10, 3, 11, 3))
sketch12.addConstraint(Sketcher.Constraint("Vertical", 11, 3, 12, 3))
sketch12.addConstraint(Sketcher.Constraint("Vertical", 12, 3, 13, 3))
sketch12.addConstraint(Sketcher.Constraint("Vertical", 13, 3, 14, 3))
sketch12.addConstraint(Sketcher.Constraint("Vertical", 14, 3, 15, 3))
sketch12.addConstraint(Sketcher.Constraint("Diameter", 0, Q("0.156 in")))
sketch12.addConstraint(Sketcher.Constraint("DistanceY", 0, 3, 1, 3, Q("2.1 in")))
sketch12.addConstraint(Sketcher.Constraint("DistanceY", 2, 3, 3, 3, Q("2.1 in")))
sketch12.addConstraint(Sketcher.Constraint("DistanceY", 1, 3, 4, 3, Q("2.1 in")))
sketch12.addConstraint(Sketcher.Constraint("DistanceY", 3, 3, 5, 3, Q("2.1 in")))
sketch12.addConstraint(Sketcher.Constraint("DistanceY", 4, 3, 6, 3, Q("2.1 in")))
sketch12.addConstraint(Sketcher.Constraint("DistanceY", 5, 3, 7, 3, Q("2.1 in")))
sketch12.addConstraint(Sketcher.Constraint("DistanceY", 2, 3, 1, 3, Q("0.375 in")))
sketch12.addConstraint(Sketcher.Constraint("DistanceX", 8, 3, 6, 3, Q("1.725 in")))
sketch12.addConstraint(Sketcher.Constraint("DistanceX", 0, 3, -1, 1, Q("2.3255 in")))
sketch12.addConstraint(Sketcher.Constraint("DistanceY", 0, 3, -1, 1, 89.7368))
pocket10 = body.newObject("PartDesign::Pocket", "Pocket009")
pocket10.Profile = sketch12
pocket10.Type = "ThroughAll"
pocket10.Reversed = True

doc.recompute()
